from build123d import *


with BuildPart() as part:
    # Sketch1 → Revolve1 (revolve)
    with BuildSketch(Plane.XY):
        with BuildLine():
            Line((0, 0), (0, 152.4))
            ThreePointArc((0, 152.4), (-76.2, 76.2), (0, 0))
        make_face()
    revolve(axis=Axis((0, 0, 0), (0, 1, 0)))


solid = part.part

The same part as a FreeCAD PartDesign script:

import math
import FreeCAD as App
import Part
import Sketcher
Q = App.Units.Quantity

doc = App.newDocument("Part")
body = doc.addObject("PartDesign::Body", "Body")

sketch1 = body.newObject("Sketcher::SketchObject", "Sketch")
sketch1.AttachmentSupport = (doc.getObject("XY_Plane"), [""])
sketch1.MapMode = "FlatFace"
sketch1.addGeometry([
    Part.LineSegment(App.Vector(0, 0, 0), App.Vector(0, 152.4, 0)),
    Part.ArcOfCircle(Part.Circle(App.Vector(0, 76.2, 0), App.Vector(0, 0, 1), 76.2), math.radians(90), math.radians(270)),
], False)
sketch1.addConstraint([
    Sketcher.Constraint("Coincident", 0, 1, 1, 2),
    Sketcher.Constraint("Coincident", 1, 1, 0, 2),
    Sketcher.Constraint("Vertical", 0),
    Sketcher.Constraint("Coincident", 0, 1, -1, 1),
    Sketcher.Constraint("PointOnObject", 1, 3, -2),
    Sketcher.Constraint("Radius", 1, Q("3 in")),
])
revolution = body.newObject("PartDesign::Revolution", "Revolution")
revolution.Profile = sketch1
revolution.ReferenceAxis = (sketch1, ["V_Axis"])
revolution.Angle = 360

doc.recompute()
